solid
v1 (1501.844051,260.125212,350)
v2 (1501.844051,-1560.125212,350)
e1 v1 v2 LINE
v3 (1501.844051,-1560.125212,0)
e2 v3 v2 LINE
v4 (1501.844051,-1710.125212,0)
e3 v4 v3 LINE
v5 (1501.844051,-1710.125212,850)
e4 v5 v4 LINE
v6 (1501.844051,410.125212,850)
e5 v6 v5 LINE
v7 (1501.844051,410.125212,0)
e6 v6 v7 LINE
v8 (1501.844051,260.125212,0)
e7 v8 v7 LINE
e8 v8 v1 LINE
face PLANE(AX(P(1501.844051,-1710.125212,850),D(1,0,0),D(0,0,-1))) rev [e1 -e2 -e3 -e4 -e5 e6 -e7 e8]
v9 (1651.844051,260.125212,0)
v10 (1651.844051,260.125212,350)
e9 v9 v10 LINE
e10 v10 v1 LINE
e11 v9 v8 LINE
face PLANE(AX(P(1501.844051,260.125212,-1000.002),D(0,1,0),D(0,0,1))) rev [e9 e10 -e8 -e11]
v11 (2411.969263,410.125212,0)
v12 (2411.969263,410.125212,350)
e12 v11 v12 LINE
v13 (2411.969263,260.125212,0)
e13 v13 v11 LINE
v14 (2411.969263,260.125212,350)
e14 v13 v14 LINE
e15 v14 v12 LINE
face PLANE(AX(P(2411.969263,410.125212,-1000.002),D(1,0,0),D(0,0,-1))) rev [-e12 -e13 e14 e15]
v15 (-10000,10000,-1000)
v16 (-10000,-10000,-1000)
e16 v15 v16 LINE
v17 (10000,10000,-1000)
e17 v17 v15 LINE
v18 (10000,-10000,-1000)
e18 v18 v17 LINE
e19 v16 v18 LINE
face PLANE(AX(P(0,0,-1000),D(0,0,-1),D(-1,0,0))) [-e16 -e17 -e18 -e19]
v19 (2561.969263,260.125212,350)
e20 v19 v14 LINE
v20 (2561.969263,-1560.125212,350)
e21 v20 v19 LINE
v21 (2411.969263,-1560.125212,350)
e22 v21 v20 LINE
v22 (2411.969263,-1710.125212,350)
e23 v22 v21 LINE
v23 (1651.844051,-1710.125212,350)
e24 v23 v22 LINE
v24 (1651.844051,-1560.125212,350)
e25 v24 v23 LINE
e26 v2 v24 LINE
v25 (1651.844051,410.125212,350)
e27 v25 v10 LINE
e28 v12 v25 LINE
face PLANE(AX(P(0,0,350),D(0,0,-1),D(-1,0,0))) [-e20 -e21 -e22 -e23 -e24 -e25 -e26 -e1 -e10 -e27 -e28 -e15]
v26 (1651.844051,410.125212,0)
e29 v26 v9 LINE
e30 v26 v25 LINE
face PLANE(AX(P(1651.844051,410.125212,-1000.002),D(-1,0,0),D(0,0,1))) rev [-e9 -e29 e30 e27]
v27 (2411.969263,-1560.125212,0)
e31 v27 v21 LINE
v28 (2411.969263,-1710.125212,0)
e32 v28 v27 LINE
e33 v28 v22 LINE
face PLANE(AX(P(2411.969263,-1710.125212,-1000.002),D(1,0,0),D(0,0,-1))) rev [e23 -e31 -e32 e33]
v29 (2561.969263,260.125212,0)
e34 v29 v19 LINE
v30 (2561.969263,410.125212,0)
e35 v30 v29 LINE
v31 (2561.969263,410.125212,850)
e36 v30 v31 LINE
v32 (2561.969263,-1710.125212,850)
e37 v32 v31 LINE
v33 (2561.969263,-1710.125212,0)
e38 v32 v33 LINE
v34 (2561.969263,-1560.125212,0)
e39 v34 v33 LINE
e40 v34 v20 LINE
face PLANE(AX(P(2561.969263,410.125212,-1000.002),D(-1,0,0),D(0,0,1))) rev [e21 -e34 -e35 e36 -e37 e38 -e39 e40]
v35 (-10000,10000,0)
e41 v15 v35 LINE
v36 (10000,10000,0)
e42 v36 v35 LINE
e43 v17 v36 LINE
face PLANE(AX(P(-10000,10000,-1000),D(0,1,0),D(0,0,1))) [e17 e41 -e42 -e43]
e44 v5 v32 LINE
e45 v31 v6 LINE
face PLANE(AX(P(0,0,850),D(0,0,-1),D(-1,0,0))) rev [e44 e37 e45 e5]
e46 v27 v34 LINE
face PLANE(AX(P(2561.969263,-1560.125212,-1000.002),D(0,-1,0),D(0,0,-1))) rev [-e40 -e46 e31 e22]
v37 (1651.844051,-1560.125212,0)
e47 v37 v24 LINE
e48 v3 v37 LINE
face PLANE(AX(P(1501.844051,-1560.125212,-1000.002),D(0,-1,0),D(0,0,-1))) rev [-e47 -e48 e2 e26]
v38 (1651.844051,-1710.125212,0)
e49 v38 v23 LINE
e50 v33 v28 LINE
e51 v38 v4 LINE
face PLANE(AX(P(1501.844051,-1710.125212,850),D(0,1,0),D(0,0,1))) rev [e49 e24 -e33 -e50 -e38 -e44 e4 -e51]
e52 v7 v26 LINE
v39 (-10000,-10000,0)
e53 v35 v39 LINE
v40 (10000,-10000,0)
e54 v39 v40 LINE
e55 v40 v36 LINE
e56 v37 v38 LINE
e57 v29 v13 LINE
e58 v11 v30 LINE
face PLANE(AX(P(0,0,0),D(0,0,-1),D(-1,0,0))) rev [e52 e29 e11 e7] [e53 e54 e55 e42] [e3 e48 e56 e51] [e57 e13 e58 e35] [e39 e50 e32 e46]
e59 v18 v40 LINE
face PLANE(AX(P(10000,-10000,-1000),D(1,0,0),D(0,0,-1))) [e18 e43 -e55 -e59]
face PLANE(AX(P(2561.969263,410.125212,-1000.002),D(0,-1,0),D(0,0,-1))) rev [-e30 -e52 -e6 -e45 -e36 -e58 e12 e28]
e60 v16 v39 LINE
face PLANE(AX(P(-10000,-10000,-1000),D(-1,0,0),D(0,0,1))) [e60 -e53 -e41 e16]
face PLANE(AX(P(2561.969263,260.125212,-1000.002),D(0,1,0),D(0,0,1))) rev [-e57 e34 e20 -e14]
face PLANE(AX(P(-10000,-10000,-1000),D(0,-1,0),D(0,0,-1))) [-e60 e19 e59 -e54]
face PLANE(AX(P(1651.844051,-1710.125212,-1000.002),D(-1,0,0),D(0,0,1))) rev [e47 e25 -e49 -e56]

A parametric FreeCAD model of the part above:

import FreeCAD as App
import Part
import Sketcher
from FreeCAD import Vector


def add_polygon(sketch, points):
    """Adds a closed chain of lines whose ends are joined by coincident constraints."""
    first, n = sketch.GeometryCount, len(points)
    for a, b in zip(points, points[1:] + points[:1]):
        sketch.addGeometry(Part.LineSegment(App.Vector(*a, 0), App.Vector(*b, 0)), False)
    for i in range(n):
        sketch.addConstraint(Sketcher.Constraint("Coincident", first + i, 2, first + (i + 1) % n, 1))

doc = App.newDocument("Part")
body = doc.addObject("PartDesign::Body", "Body")

sketch1 = body.newObject("Sketcher::SketchObject", "Sketch")
sketch1.AttachmentSupport = (doc.getObject("XY_Plane"), [""])
sketch1.MapMode = "FlatFace"
add_polygon(sketch1, [(-10000, 10000), (-10000, -10000), (10000, -10000), (10000, 10000)])
sketch1.addConstraint([
    Sketcher.Constraint("Vertical", 0),
    Sketcher.Constraint("Horizontal", 1),
    Sketcher.Constraint("Vertical", 2),
    Sketcher.Constraint("Horizontal", 3),
    Sketcher.Constraint("Symmetric", 0, 2, 2, 2, -1, 1),
    Sketcher.Constraint("Equal", 3, 0),
    Sketcher.Constraint("DistanceX", 1, 1, 1, 2, 20000.0),
])
pad1 = body.newObject("PartDesign::Pad", "Pad")
pad1.Profile = sketch1
pad1.Length = 1000
pad1.Reversed = True
body2 = doc.addObject("PartDesign::Body", "Body001")

sketch2 = body2.newObject("Sketcher::SketchObject", "Sketch001")
sketch2.AttachmentSupport = (doc.getObject("XY_Plane001"), [""])
sketch2.MapMode = "FlatFace"
sketch2.AttachmentOffset = App.Placement(Vector(0, 0, 350), App.Rotation())
add_polygon(sketch2, [(1502, 410), (1502, -1710), (2562, -1710), (2562, 410)])
sketch2.addConstraint([
    Sketcher.Constraint("Vertical", 0),
    Sketcher.Constraint("Horizontal", 1),
    Sketcher.Constraint("Vertical", 2),
    Sketcher.Constraint("Horizontal", 3),
    Sketcher.Constraint("DistanceX", 1, 1, 1, 2, 1060.125212),
    Sketcher.Constraint("DistanceY", 0, 2, 0, 1, 2120.250424),
    Sketcher.Constraint("DistanceX", -1, 1, 0, 2, 1501.844051),
    Sketcher.Constraint("DistanceY", 0, 2, -1, 1, 1710.125212),
])
pad2 = body2.newObject("PartDesign::Pad", "Pad001")
pad2.Profile = sketch2
pad2.Length = 500
body.AllowCompound = True
doc.recompute()

boolean = body.newObject("PartDesign::Boolean", "Boolean")
boolean.Type = "Fuse"
boolean.addObjects([body2])

sketch3 = body.newObject("Sketcher::SketchObject", "Sketch002")
sketch3.AttachmentSupport = (doc.getObject("XY_Plane"), [""])
sketch3.MapMode = "FlatFace"
sketch3.AttachmentOffset = App.Placement(Vector(0, 0, 350), App.Rotation())
add_polygon(sketch3, [(2562, 410), (2562, 260), (2412, 260), (2412, 410)])
sketch3.addConstraint([
    Sketcher.Constraint("Vertical", 0),
    Sketcher.Constraint("Horizontal", 1),
    Sketcher.Constraint("Vertical", 2),
    Sketcher.Constraint("Horizontal", 3),
    Sketcher.Constraint("Equal", 3, 0),
    Sketcher.Constraint("DistanceX", 1, 2, 1, 1, 150.0),
    Sketcher.Constraint("DistanceX", -1, 1, 0, 2, 2561.969263),
    Sketcher.Constraint("DistanceY", -1, 1, 0, 2, 260.125212),
])
pad3 = body.newObject("PartDesign::Pad", "Pad002")
pad3.Profile = sketch3
pad3.Type = "UpToFirst"
pad3.Reversed = True

sketch4 = body.newObject("Sketcher::SketchObject", "Sketch003")
sketch4.AttachmentSupport = (doc.getObject("XY_Plane"), [""])
sketch4.MapMode = "FlatFace"
sketch4.AttachmentOffset = App.Placement(Vector(0, 0, 350), App.Rotation())
add_polygon(sketch4, [(1652, 410), (1652, 260), (1502, 260), (1502, 410)])
sketch4.addConstraint([
    Sketcher.Constraint("Vertical", 0),
    Sketcher.Constraint("Horizontal", 1),
    Sketcher.Constraint("Vertical", 2),
    Sketcher.Constraint("Horizontal", 3),
    Sketcher.Constraint("Equal", 3, 0),
    Sketcher.Constraint("DistanceX", 1, 2, 1, 1, 150.0),
    Sketcher.Constraint("DistanceX", -1, 1, 0, 2, 1651.844051),
    Sketcher.Constraint("DistanceY", -1, 1, 0, 2, 260.125212),
])
pad4 = body.newObject("PartDesign::Pad", "Pad003")
pad4.Profile = sketch4
pad4.Type = "UpToFirst"
pad4.Reversed = True

sketch5 = body.newObject("Sketcher::SketchObject", "Sketch004")
sketch5.AttachmentSupport = (doc.getObject("XY_Plane"), [""])
sketch5.MapMode = "FlatFace"
sketch5.AttachmentOffset = App.Placement(Vector(0, 0, 350), App.Rotation())
add_polygon(sketch5, [(2562, -1560), (2562, -1710), (2412, -1710), (2412, -1560)])
sketch5.addConstraint([
    Sketcher.Constraint("Vertical", 0),
    Sketcher.Constraint("Horizontal", 1),
    Sketcher.Constraint("Vertical", 2),
    Sketcher.Constraint("Horizontal", 3),
    Sketcher.Constraint("Equal", 3, 0),
    Sketcher.Constraint("DistanceX", 1, 2, 1, 1, 150.0),
    Sketcher.Constraint("DistanceX", -1, 1, 0, 2, 2561.969263),
    Sketcher.Constraint("DistanceY", 0, 2, -1, 1, 1710.125212),
])
pad5 = body.newObject("PartDesign::Pad", "Pad004")
pad5.Profile = sketch5
pad5.Type = "UpToFirst"
pad5.Reversed = True

sketch6 = body.newObject("Sketcher::SketchObject", "Sketch005")
sketch6.AttachmentSupport = (doc.getObject("XY_Plane"), [""])
sketch6.MapMode = "FlatFace"
sketch6.AttachmentOffset = App.Placement(Vector(0, 0, 350), App.Rotation())
add_polygon(sketch6, [(1652, -1560), (1652, -1710), (1502, -1710), (1502, -1560)])
sketch6.addConstraint([
    Sketcher.Constraint("Vertical", 0),
    Sketcher.Constraint("Horizontal", 1),
    Sketcher.Constraint("Vertical", 2),
    Sketcher.Constraint("Horizontal", 3),
    Sketcher.Constraint("Equal", 3, 0),
    Sketcher.Constraint("DistanceX", 1, 2, 1, 1, 150.0),
    Sketcher.Constraint("DistanceX", -1, 1, 0, 2, 1651.844051),
    Sketcher.Constraint("DistanceY", 0, 2, -1, 1, 1710.125212),
])
pad6 = body.newObject("PartDesign::Pad", "Pad005")
pad6.Profile = sketch6
pad6.Type = "UpToFirst"
pad6.Reversed = True

doc.recompute()
